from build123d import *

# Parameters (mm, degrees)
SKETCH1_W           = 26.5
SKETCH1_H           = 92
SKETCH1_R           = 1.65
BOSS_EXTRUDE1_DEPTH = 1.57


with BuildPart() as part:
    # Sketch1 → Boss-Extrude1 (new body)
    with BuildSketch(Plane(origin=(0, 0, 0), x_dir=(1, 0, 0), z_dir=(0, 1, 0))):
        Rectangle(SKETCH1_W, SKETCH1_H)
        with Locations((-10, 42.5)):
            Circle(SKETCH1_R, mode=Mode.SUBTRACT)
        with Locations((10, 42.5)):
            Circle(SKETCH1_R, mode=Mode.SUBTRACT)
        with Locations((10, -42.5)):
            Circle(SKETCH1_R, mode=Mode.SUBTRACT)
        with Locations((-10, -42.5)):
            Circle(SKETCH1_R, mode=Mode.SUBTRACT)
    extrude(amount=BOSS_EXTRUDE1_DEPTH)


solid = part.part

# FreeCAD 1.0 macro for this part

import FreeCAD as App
import Part
import Sketcher

V = App.Vector

doc = App.newDocument("Part")
body = doc.addObject("PartDesign::Body", "Body")

# Sketch on XZ plane
sketch1 = body.newObject("Sketcher::SketchObject", "Sketch")
sketch1.AttachmentSupport = (doc.getObject("XZ_Plane"), [""])
sketch1.MapMode = "FlatFace"
sketch1.addGeometry([
    Part.LineSegment(V(-13.2, -46, 0), V(-13.2, 46, 0)),  # 0
    Part.LineSegment(V(-13.2, 46, 0), V(13.2, 46, 0)),  # 1
    Part.LineSegment(V(13.2, 46, 0), V(13.2, -46, 0)),  # 2
    Part.LineSegment(V(13.2, -46, 0), V(-13.2, -46, 0)),  # 3
    Part.Circle(V(-10, 42.5, 0), V(0, 0, 1), 1.6),  # 4
    Part.Circle(V(10, 42.5, 0), V(0, 0, 1), 1.6),  # 5
    Part.Circle(V(-10, -42.5, 0), V(0, 0, 1), 1.6),  # 6
    Part.Circle(V(10, -42.5, 0), V(0, 0, 1), 1.6),  # 7
], False)
sketch1.addConstraint([
    Sketcher.Constraint("Coincident", 0, 2, 1, 1),
    Sketcher.Constraint("Coincident", 1, 2, 2, 1),
    Sketcher.Constraint("Coincident", 2, 2, 3, 1),
    Sketcher.Constraint("Coincident", 3, 2, 0, 1),
    Sketcher.Constraint("Vertical", 0),
    Sketcher.Constraint("Horizontal", 1),
    Sketcher.Constraint("Vertical", 2),
    Sketcher.Constraint("Horizontal", 3),
    Sketcher.Constraint("Equal", 4, 5),
    Sketcher.Constraint("Equal", 5, 6),
    Sketcher.Constraint("Equal", 6, 7),
    Sketcher.Constraint("Symmetric", 5, 3, 6, 3, -1, 1),
    Sketcher.Constraint("Symmetric", 4, 3, 7, 3, -1, 1),
    Sketcher.Constraint("Symmetric", 0, 2, 2, 2, -1, 1),
    Sketcher.Constraint("Symmetric", 4, 3, 5, 3, -2),
    Sketcher.Constraint("Diameter", 4, 3.3),
    Sketcher.Constraint("DistanceY", 0, 1, 0, 2, 92.0),
    Sketcher.Constraint("DistanceX", 1, 1, 1, 2, 26.5),
    Sketcher.Constraint("DistanceX", 4, 3, -1, 1, 10.0),
    Sketcher.Constraint("DistanceY", 6, 3, 4, 3, 85.0),
])
pad1 = body.newObject("PartDesign::Pad", "Pad")
pad1.Profile = sketch1
pad1.Length = 1.57
pad1.Reversed = True

doc.recompute()
